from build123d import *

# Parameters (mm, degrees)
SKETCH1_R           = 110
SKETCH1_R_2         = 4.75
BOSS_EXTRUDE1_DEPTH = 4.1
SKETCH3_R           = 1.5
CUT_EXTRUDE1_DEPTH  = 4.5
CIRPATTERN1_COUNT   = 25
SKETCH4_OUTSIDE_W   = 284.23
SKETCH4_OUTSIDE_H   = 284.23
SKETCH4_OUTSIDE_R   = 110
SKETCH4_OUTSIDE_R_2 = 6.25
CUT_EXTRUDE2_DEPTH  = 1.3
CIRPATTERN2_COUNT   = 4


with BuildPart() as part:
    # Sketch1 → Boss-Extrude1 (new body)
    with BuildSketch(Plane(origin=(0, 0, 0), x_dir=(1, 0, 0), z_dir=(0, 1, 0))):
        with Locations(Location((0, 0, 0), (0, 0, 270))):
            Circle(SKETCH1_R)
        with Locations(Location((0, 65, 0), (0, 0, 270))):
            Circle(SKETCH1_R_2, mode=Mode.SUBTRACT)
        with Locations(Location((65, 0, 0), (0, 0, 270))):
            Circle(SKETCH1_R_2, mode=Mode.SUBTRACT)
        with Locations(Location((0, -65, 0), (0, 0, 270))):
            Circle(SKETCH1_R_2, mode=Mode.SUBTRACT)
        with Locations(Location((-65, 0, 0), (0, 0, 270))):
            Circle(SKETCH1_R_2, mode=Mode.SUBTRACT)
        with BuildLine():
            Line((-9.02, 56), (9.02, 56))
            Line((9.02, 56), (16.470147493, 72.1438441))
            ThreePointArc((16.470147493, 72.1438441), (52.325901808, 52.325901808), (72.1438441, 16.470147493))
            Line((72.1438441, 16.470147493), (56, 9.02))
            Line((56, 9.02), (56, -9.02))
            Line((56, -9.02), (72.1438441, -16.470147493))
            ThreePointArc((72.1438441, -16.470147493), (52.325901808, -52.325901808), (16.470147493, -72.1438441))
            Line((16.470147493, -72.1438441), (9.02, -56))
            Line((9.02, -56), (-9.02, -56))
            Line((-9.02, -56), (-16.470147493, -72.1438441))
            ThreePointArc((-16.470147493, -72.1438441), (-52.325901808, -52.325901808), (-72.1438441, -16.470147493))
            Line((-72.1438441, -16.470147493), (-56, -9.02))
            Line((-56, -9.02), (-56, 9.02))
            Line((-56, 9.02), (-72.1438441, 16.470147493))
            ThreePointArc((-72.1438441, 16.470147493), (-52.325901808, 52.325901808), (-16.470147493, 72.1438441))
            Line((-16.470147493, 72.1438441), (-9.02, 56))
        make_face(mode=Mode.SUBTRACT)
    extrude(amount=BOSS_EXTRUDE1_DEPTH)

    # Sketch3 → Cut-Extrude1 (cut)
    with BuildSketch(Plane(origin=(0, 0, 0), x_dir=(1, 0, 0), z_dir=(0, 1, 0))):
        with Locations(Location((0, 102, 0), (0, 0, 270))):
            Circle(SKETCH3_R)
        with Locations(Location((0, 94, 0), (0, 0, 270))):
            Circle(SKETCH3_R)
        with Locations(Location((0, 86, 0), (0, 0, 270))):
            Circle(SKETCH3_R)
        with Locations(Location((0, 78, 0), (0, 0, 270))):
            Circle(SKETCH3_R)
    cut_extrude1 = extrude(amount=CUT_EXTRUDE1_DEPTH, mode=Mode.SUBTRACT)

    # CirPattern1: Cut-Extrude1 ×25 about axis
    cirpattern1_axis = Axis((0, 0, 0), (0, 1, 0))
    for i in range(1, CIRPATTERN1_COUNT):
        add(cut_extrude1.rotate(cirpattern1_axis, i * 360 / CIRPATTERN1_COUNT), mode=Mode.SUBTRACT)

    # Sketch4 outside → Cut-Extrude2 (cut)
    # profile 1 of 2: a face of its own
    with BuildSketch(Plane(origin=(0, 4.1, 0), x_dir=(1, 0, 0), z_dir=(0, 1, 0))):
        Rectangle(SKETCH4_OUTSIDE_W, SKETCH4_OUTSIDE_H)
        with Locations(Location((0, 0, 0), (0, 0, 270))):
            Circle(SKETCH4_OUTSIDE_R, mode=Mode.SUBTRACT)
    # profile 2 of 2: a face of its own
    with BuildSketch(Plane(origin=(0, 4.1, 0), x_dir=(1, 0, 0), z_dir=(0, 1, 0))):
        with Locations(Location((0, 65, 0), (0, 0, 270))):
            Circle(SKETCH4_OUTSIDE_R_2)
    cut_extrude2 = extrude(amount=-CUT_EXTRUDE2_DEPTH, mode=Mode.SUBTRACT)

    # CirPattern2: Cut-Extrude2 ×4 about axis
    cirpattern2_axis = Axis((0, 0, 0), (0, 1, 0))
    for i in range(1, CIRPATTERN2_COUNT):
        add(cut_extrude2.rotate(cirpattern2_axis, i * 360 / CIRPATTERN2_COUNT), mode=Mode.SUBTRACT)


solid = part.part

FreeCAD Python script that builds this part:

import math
import FreeCAD as App
import Part
import Sketcher

V = App.Vector

doc = App.newDocument("Part")
body = doc.addObject("PartDesign::Body", "Body")

sketch1 = body.newObject("Sketcher::SketchObject", "Sketch")
sketch1.AttachmentSupport = (doc.getObject("XZ_Plane"), [""])
sketch1.MapMode = "FlatFace"
sketch1.addGeometry(Part.Circle(V(0, 0, 0), V(0, 0, 1), 110), False)
sketch1.addGeometry(Part.Circle(V(0, -65, 0), V(0, 0, 1), 4.8), False)
sketch1.addGeometry(Part.Circle(V(-65, 0, 0), V(0, 0, 1), 4.8), False)
sketch1.addGeometry(Part.Circle(V(65, 0, 0), V(0, 0, 1), 4.8), False)
sketch1.addGeometry(Part.LineSegment(V(-16.5, -72.1, 0), V(-9, -56, 0)), False)
sketch1.addGeometry(Part.LineSegment(V(-9, -56, 0), V(9, -56, 0)), False)
sketch1.addGeometry(Part.LineSegment(V(9, -56, 0), V(16.5, -72.1, 0)), False)
sketch1.addGeometry(Part.ArcOfCircle(Part.Circle(V(0, 0, 0), V(0, 0, 1), 74), math.radians(-77), math.radians(-13)), False)
sketch1.addGeometry(Part.LineSegment(V(72.1, -16.5, 0), V(56, -9, 0)), False)
sketch1.addGeometry(Part.LineSegment(V(56, -9, 0), V(56, 9, 0)), False)
sketch1.addGeometry(Part.LineSegment(V(56, 9, 0), V(72.1, 16.5, 0)), False)
sketch1.addGeometry(Part.ArcOfCircle(Part.Circle(V(0, 0, 0), V(0, 0, 1), 74), math.radians(13), math.radians(77)), False)
sketch1.addGeometry(Part.LineSegment(V(16.5, 72.1, 0), V(9, 56, 0)), False)
sketch1.addGeometry(Part.LineSegment(V(9, 56, 0), V(-9, 56, 0)), False)
sketch1.addGeometry(Part.LineSegment(V(-9, 56, 0), V(-16.5, 72.1, 0)), False)
sketch1.addGeometry(Part.ArcOfCircle(Part.Circle(V(0, 0, 0), V(0, 0, 1), 74), math.radians(103), math.radians(167)), False)
sketch1.addGeometry(Part.LineSegment(V(-72.1, 16.5, 0), V(-56, 9, 0)), False)
sketch1.addGeometry(Part.LineSegment(V(-56, 9, 0), V(-56, -9, 0)), False)
sketch1.addGeometry(Part.LineSegment(V(-56, -9, 0), V(-72.1, -16.5, 0)), False)
sketch1.addGeometry(Part.ArcOfCircle(Part.Circle(V(0, 0, 0), V(0, 0, 1), 74), math.radians(-167), math.radians(-103)), False)
sketch1.addGeometry(Part.Circle(V(0, 65, 0), V(0, 0, 1), 4.8), False)
sketch1.addConstraint(Sketcher.Constraint("Coincident", 4, 2, 5, 1))
sketch1.addConstraint(Sketcher.Constraint("Coincident", 5, 2, 6, 1))
sketch1.addConstraint(Sketcher.Constraint("Coincident", 6, 2, 7, 1))
sketch1.addConstraint(Sketcher.Constraint("Coincident", 7, 2, 8, 1))
sketch1.addConstraint(Sketcher.Constraint("Coincident", 8, 2, 9, 1))
sketch1.addConstraint(Sketcher.Constraint("Coincident", 9, 2, 10, 1))
sketch1.addConstraint(Sketcher.Constraint("Coincident", 10, 2, 11, 1))
sketch1.addConstraint(Sketcher.Constraint("Coincident", 11, 2, 12, 1))
sketch1.addConstraint(Sketcher.Constraint("Coincident", 12, 2, 13, 1))
sketch1.addConstraint(Sketcher.Constraint("Coincident", 13, 2, 14, 1))
sketch1.addConstraint(Sketcher.Constraint("Coincident", 14, 2, 15, 1))
sketch1.addConstraint(Sketcher.Constraint("Coincident", 15, 2, 16, 1))
sketch1.addConstraint(Sketcher.Constraint("Coincident", 16, 2, 17, 1))
sketch1.addConstraint(Sketcher.Constraint("Coincident", 17, 2, 18, 1))
sketch1.addConstraint(Sketcher.Constraint("Coincident", 18, 2, 19, 1))
sketch1.addConstraint(Sketcher.Constraint("Coincident", 19, 2, 4, 1))
sketch1.addConstraint(Sketcher.Constraint("Horizontal", 5))
sketch1.addConstraint(Sketcher.Constraint("Vertical", 9))
sketch1.addConstraint(Sketcher.Constraint("Horizontal", 13))
sketch1.addConstraint(Sketcher.Constraint("Vertical", 17))
sketch1.addConstraint(Sketcher.Constraint("Coincident", 0, 3, -1, 1))
sketch1.addConstraint(Sketcher.Constraint("Coincident", 7, 3, -1, 1))
sketch1.addConstraint(Sketcher.Constraint("Coincident", 11, 3, -1, 1))
sketch1.addConstraint(Sketcher.Constraint("Coincident", 15, 3, -1, 1))
sketch1.addConstraint(Sketcher.Constraint("Coincident", 19, 3, -1, 1))
sketch1.addConstraint(Sketcher.Constraint("Equal", 1, 2))
sketch1.addConstraint(Sketcher.Constraint("Equal", 2, 3))
sketch1.addConstraint(Sketcher.Constraint("Equal", 7, 11))
sketch1.addConstraint(Sketcher.Constraint("Equal", 11, 15))
sketch1.addConstraint(Sketcher.Constraint("Equal", 15, 19))
sketch1.addConstraint(Sketcher.Constraint("Equal", 3, 20))
sketch1.addConstraint(Sketcher.Constraint("Symmetric", 2, 3, 3, 3, -1, 1))
sketch1.addConstraint(Sketcher.Constraint("Symmetric", 1, 3, 20, 3, -1, 1))
sketch1.addConstraint(Sketcher.Constraint("Symmetric", 4, 2, 12, 2, -1, 1))
sketch1.addConstraint(Sketcher.Constraint("Symmetric", 8, 2, 16, 2, -1, 1))
sketch1.addConstraint(Sketcher.Constraint("PointOnObject", 1, 3, -2))
sketch1.addConstraint(Sketcher.Constraint("PointOnObject", 2, 3, -1))
sketch1.addConstraint(Sketcher.Constraint("Perpendicular", 4, 8))
sketch1.addConstraint(Sketcher.Constraint("Perpendicular", 6, 10))
sketch1.addConstraint(Sketcher.Constraint("Perpendicular", 8, 12))
sketch1.addConstraint(Sketcher.Constraint("Perpendicular", 10, 14))
sketch1.addConstraint(Sketcher.Constraint("Perpendicular", 12, 16))
sketch1.addConstraint(Sketcher.Constraint("Perpendicular", 14, 18))
sketch1.addConstraint(Sketcher.Constraint("Horizontal", 11, 2, 14, 2))
sketch1.addConstraint(Sketcher.Constraint("Horizontal", 10, 2, 15, 2))
sketch1.addConstraint(Sketcher.Constraint("Horizontal", 9, 2, 16, 2))
sketch1.addConstraint(Sketcher.Constraint("Horizontal", 8, 2, 17, 2))
sketch1.addConstraint(Sketcher.Constraint("Horizontal", 6, 2, 19, 2))
sketch1.addConstraint(Sketcher.Constraint("Equal", 13, 9))
sketch1.addConstraint(Sketcher.Constraint("Equal", 6, 8))
sketch1.addConstraint(Sketcher.Constraint("Diameter", 0, 220.0))
sketch1.addConstraint(Sketcher.Constraint("Radius", 7, 74.0))
sketch1.addConstraint(Sketcher.Constraint("Diameter", 1, 9.5))
sketch1.addConstraint(Sketcher.Constraint("DistanceY", 1, 3, -1, 1, 65.0))
sketch1.addConstraint(Sketcher.Constraint("DistanceX", 2, 3, -1, 1, 65.0))
sketch1.addConstraint(Sketcher.Constraint("DistanceY", 4, 2, -1, 1, 56.0))
sketch1.addConstraint(Sketcher.Constraint("DistanceX", 5, 1, 5, 2, 18.04))
sketch1.addConstraint(Sketcher.Constraint("Distance", 4, 17.78))
pad1 = body.newObject("PartDesign::Pad", "Pad")
pad1.Profile = sketch1
pad1.Length = 4.1
pad1.Reversed = True

sketch2 = body.newObject("Sketcher::SketchObject", "Sketch001")
sketch2.AttachmentSupport = (doc.getObject("XZ_Plane"), [""])
sketch2.MapMode = "FlatFace"
sketch2.addGeometry(Part.Circle(V(0, -102, 0), V(0, 0, 1), 1.5), False)
sketch2.addGeometry(Part.Circle(V(0, -94, 0), V(0, 0, 1), 1.5), False)
sketch2.addGeometry(Part.Circle(V(0, -86, 0), V(0, 0, 1), 1.5), False)
sketch2.addGeometry(Part.Circle(V(0, -78, 0), V(0, 0, 1), 1.5), False)
sketch2.addConstraint(Sketcher.Constraint("Equal", 0, 1))
sketch2.addConstraint(Sketcher.Constraint("Equal", 1, 2))
sketch2.addConstraint(Sketcher.Constraint("Equal", 2, 3))
sketch2.addConstraint(Sketcher.Constraint("PointOnObject", 0, 3, -2))
sketch2.addConstraint(Sketcher.Constraint("PointOnObject", 1, 3, -2))
sketch2.addConstraint(Sketcher.Constraint("PointOnObject", 2, 3, -2))
sketch2.addConstraint(Sketcher.Constraint("PointOnObject", 3, 3, -2))
sketch2.addConstraint(Sketcher.Constraint("Diameter", 0, 3.0))
sketch2.addConstraint(Sketcher.Constraint("DistanceY", 0, 3, -1, 1, 102.0))
sketch2.addConstraint(Sketcher.Constraint("DistanceY", 1, 3, -1, 1, 94.0))
sketch2.addConstraint(Sketcher.Constraint("DistanceY", 2, 3, -1, 1, 86.0))
sketch2.addConstraint(Sketcher.Constraint("DistanceY", 3, 3, -1, 1, 78.0))
pocket1 = body.newObject("PartDesign::Pocket", "Pocket")
pocket1.Profile = sketch2
pocket1.Length = 4.5
doc.recompute()

polarpattern = body.newObject("PartDesign::PolarPattern", "PolarPattern")
polarpattern.Originals = [pocket1]
polarpattern.Axis = (doc.getObject("Y_Axis"), [""])
polarpattern.Angle = 360
polarpattern.Occurrences = 25
body.Tip = polarpattern

sketch3 = body.newObject("Sketcher::SketchObject", "Sketch002")
sketch3.AttachmentSupport = (doc.getObject("XZ_Plane"), [""])
sketch3.MapMode = "FlatFace"
sketch3.AttachmentOffset = App.Placement(V(0, 0, -4.1), App.Rotation())
sketch3.addGeometry(Part.LineSegment(V(-142, -142, 0), V(-142, 142, 0)), False)
sketch3.addGeometry(Part.LineSegment(V(-142, 142, 0), V(142, 142, 0)), False)
sketch3.addGeometry(Part.LineSegment(V(142, 142, 0), V(142, -142, 0)), False)
sketch3.addGeometry(Part.LineSegment(V(142, -142, 0), V(-142, -142, 0)), False)
sketch3.addGeometry(Part.Circle(V(0, 0, 0), V(0, 0, 1), 110), False)
sketch3.addGeometry(Part.Circle(V(0, -65, 0), V(0, 0, 1), 6), False)
sketch3.addConstraint(Sketcher.Constraint("Coincident", 0, 2, 1, 1))
sketch3.addConstraint(Sketcher.Constraint("Coincident", 1, 2, 2, 1))
sketch3.addConstraint(Sketcher.Constraint("Coincident", 2, 2, 3, 1))
sketch3.addConstraint(Sketcher.Constraint("Coincident", 3, 2, 0, 1))
sketch3.addConstraint(Sketcher.Constraint("Vertical", 0))
sketch3.addConstraint(Sketcher.Constraint("Horizontal", 1))
sketch3.addConstraint(Sketcher.Constraint("Vertical", 2))
sketch3.addConstraint(Sketcher.Constraint("Horizontal", 3))
sketch3.addConstraint(Sketcher.Constraint("Coincident", 4, 3, -1, 1))
sketch3.addConstraint(Sketcher.Constraint("Symmetric", 0, 2, 2, 2, -1, 1))
sketch3.addConstraint(Sketcher.Constraint("PointOnObject", 5, 3, -2))
sketch3.addConstraint(Sketcher.Constraint("Equal", 3, 0))
sketch3.addConstraint(Sketcher.Constraint("Diameter", 4, 220.0))
sketch3.addConstraint(Sketcher.Constraint("Diameter", 5, 12.5))
sketch3.addConstraint(Sketcher.Constraint("DistanceY", 5, 3, -1, 1, 65.0))
sketch3.addConstraint(Sketcher.Constraint("DistanceX", 1, 1, 1, 2, 284.23))
pocket2 = body.newObject("PartDesign::Pocket", "Pocket001")
pocket2.Profile = sketch3
pocket2.Length = 1.3
pocket2.Reversed = True
doc.recompute()

polarpattern2 = body.newObject("PartDesign::PolarPattern", "PolarPattern001")
polarpattern2.Originals = [pocket2]
polarpattern2.Axis = (doc.getObject("Y_Axis"), [""])
polarpattern2.Angle = 360
polarpattern2.Occurrences = 4
body.Tip = polarpattern2

doc.recompute()
